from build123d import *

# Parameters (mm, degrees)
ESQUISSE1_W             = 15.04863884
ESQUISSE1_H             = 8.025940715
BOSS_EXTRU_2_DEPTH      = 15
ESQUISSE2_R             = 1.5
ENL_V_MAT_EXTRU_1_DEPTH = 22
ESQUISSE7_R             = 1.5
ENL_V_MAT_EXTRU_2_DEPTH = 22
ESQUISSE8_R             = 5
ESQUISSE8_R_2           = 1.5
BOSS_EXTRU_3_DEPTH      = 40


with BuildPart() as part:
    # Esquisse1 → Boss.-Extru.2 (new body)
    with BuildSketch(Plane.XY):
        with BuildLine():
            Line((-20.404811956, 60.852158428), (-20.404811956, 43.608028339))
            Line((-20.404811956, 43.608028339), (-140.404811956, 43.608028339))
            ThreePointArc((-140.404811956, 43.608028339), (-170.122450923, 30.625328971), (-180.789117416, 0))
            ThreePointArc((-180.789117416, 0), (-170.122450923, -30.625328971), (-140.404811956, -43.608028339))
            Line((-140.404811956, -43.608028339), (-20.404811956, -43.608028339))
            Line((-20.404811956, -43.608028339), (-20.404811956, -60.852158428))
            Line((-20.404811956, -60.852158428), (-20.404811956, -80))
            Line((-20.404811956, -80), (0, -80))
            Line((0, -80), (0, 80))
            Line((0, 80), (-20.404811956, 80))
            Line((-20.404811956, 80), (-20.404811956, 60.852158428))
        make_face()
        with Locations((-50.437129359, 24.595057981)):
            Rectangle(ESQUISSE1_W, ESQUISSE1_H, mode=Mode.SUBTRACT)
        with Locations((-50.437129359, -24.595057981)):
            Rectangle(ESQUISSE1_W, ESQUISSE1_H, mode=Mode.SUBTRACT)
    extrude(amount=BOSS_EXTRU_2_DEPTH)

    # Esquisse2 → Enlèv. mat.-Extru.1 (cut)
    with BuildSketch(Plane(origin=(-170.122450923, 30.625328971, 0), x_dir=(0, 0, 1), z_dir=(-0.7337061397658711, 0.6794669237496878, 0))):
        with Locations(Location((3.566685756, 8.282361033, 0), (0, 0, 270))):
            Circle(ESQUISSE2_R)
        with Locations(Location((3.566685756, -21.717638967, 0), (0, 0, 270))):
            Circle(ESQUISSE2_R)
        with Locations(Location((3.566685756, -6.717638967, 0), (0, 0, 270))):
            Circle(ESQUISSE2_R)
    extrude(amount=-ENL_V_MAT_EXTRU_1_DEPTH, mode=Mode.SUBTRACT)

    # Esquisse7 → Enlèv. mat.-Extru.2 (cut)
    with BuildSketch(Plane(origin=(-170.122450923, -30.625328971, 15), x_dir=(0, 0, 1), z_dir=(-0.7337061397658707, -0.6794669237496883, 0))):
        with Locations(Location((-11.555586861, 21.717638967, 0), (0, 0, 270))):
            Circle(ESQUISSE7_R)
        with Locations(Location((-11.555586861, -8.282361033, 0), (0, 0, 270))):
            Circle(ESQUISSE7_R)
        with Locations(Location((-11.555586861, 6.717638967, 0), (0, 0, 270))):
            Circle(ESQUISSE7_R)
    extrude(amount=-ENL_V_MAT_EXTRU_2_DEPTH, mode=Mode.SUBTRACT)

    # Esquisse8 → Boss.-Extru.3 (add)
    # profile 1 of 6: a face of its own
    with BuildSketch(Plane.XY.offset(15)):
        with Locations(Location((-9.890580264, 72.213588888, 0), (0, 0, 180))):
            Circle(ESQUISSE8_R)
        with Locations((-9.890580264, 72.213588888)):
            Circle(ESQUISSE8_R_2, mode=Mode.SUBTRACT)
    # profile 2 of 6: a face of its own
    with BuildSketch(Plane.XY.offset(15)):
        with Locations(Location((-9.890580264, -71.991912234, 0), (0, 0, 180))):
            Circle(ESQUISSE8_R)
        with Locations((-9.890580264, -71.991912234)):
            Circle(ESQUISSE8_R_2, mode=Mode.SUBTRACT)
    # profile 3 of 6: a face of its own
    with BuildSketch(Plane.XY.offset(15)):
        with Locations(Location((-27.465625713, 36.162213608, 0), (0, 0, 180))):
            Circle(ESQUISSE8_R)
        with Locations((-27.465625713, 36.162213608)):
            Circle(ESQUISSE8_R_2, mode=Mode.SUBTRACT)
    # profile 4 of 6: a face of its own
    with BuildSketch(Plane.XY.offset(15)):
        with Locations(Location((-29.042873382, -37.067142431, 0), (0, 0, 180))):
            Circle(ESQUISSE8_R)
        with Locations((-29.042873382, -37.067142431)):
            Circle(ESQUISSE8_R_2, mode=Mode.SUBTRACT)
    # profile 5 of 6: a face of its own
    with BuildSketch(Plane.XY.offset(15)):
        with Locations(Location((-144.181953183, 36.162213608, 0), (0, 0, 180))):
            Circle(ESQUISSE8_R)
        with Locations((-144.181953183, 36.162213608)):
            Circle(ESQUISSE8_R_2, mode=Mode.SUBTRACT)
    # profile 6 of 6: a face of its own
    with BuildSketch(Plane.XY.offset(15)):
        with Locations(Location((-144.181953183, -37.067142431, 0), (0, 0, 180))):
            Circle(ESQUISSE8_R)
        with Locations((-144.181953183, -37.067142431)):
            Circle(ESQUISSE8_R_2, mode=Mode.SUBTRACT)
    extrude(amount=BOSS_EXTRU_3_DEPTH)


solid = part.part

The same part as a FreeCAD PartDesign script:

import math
import FreeCAD as App
import Part
import Sketcher

doc = App.newDocument("Part")
body = doc.addObject("PartDesign::Body", "Body")

# Sketch on XY plane
sketch1 = body.newObject("Sketcher::SketchObject", "Sketch")
sketch1.AttachmentSupport = (doc.getObject("XY_Plane"), [""])
sketch1.MapMode = "FlatFace"
sketch1.addGeometry(Part.LineSegment(App.Vector(-20, 44, 0), App.Vector(-140, 44, 0)), False)
sketch1.addGeometry(Part.ArcOfCircle(Part.Circle(App.Vector(-140, 3, 0), App.Vector(0, 0, 1), 41), math.radians(90), math.radians(184)), False)
sketch1.addGeometry(Part.ArcOfCircle(Part.Circle(App.Vector(-140, -3, 0), App.Vector(0, 0, 1), 41), math.radians(176), math.radians(270)), False)
sketch1.addGeometry(Part.LineSegment(App.Vector(-140, -44, 0), App.Vector(-20, -44, 0)), False)
sketch1.addGeometry(Part.LineSegment(App.Vector(-20, -44, 0), App.Vector(-20, -80, 0)), False)
sketch1.addGeometry(Part.LineSegment(App.Vector(-20, -80, 0), App.Vector(0, -80, 0)), False)
sketch1.addGeometry(Part.LineSegment(App.Vector(0, -80, 0), App.Vector(0, 80, 0)), False)
sketch1.addGeometry(Part.LineSegment(App.Vector(0, 80, 0), App.Vector(-20, 80, 0)), False)
sketch1.addGeometry(Part.LineSegment(App.Vector(-20, 80, 0), App.Vector(-20, 44, 0)), False)
sketch1.addGeometry(Part.LineSegment(App.Vector(-43, -29, 0), App.Vector(-58, -29, 0)), False)
sketch1.addGeometry(Part.LineSegment(App.Vector(-58, -29, 0), App.Vector(-58, -21, 0)), False)
sketch1.addGeometry(Part.LineSegment(App.Vector(-58, -21, 0), App.Vector(-43, -21, 0)), False)
sketch1.addGeometry(Part.LineSegment(App.Vector(-43, -21, 0), App.Vector(-43, -29, 0)), False)
sketch1.addGeometry(Part.LineSegment(App.Vector(-43, 21, 0), App.Vector(-58, 21, 0)), False)
sketch1.addGeometry(Part.LineSegment(App.Vector(-58, 21, 0), App.Vector(-58, 29, 0)), False)
sketch1.addGeometry(Part.LineSegment(App.Vector(-58, 29, 0), App.Vector(-43, 29, 0)), False)
sketch1.addGeometry(Part.LineSegment(App.Vector(-43, 29, 0), App.Vector(-43, 21, 0)), False)
sketch1.addConstraint(Sketcher.Constraint("Tangent", 0, 2, 1, 1))
sketch1.addConstraint(Sketcher.Constraint("Coincident", 1, 2, 2, 1))
sketch1.addConstraint(Sketcher.Constraint("Tangent", 2, 2, 3, 1))
sketch1.addConstraint(Sketcher.Constraint("Coincident", 3, 2, 4, 1))
sketch1.addConstraint(Sketcher.Constraint("Coincident", 4, 2, 5, 1))
sketch1.addConstraint(Sketcher.Constraint("Coincident", 5, 2, 6, 1))
sketch1.addConstraint(Sketcher.Constraint("Coincident", 6, 2, 7, 1))
sketch1.addConstraint(Sketcher.Constraint("Coincident", 7, 2, 8, 1))
sketch1.addConstraint(Sketcher.Constraint("Coincident", 8, 2, 0, 1))
sketch1.addConstraint(Sketcher.Constraint("Coincident", 9, 2, 10, 1))
sketch1.addConstraint(Sketcher.Constraint("Coincident", 10, 2, 11, 1))
sketch1.addConstraint(Sketcher.Constraint("Coincident", 11, 2, 12, 1))
sketch1.addConstraint(Sketcher.Constraint("Coincident", 12, 2, 9, 1))
sketch1.addConstraint(Sketcher.Constraint("Coincident", 13, 2, 14, 1))
sketch1.addConstraint(Sketcher.Constraint("Coincident", 14, 2, 15, 1))
sketch1.addConstraint(Sketcher.Constraint("Coincident", 15, 2, 16, 1))
sketch1.addConstraint(Sketcher.Constraint("Coincident", 16, 2, 13, 1))
sketch1.addConstraint(Sketcher.Constraint("Horizontal", 0))
sketch1.addConstraint(Sketcher.Constraint("Horizontal", 3))
sketch1.addConstraint(Sketcher.Constraint("Vertical", 4))
sketch1.addConstraint(Sketcher.Constraint("Horizontal", 5))
sketch1.addConstraint(Sketcher.Constraint("Vertical", 6))
sketch1.addConstraint(Sketcher.Constraint("Horizontal", 7))
sketch1.addConstraint(Sketcher.Constraint("Vertical", 8))
sketch1.addConstraint(Sketcher.Constraint("Horizontal", 9))
sketch1.addConstraint(Sketcher.Constraint("Vertical", 10))
sketch1.addConstraint(Sketcher.Constraint("Horizontal", 11))
sketch1.addConstraint(Sketcher.Constraint("Vertical", 12))
sketch1.addConstraint(Sketcher.Constraint("Horizontal", 13))
sketch1.addConstraint(Sketcher.Constraint("Vertical", 14))
sketch1.addConstraint(Sketcher.Constraint("Horizontal", 15))
sketch1.addConstraint(Sketcher.Constraint("Vertical", 16))
sketch1.addConstraint(Sketcher.Constraint("Equal", 1, 2))
sketch1.addConstraint(Sketcher.Constraint("Symmetric", 5, 2, 6, 2, -1, 1))
sketch1.addConstraint(Sketcher.Constraint("Symmetric", 1, 3, 2, 3, -1))
sketch1.addConstraint(Sketcher.Constraint("Symmetric", 10, 2, 13, 2, -1))
sketch1.addConstraint(Sketcher.Constraint("Symmetric", 12, 2, 15, 2, -1))
sketch1.addConstraint(Sketcher.Constraint("Vertical", 4, 2, 7, 2))
sketch1.addConstraint(Sketcher.Constraint("DistanceX", 0, 2, 0, 1, 120.0))
sketch1.addConstraint(Sketcher.Constraint("DistanceY", 6, 1, 6, 2, 160.0))
sketch1.addConstraint(Sketcher.Constraint("DistanceY", 3, 2, 9, 2, 15.0))
sketch1.addConstraint(Sketcher.Constraint("Radius", 1, 40.503462))
sketch1.addConstraint(Sketcher.Constraint("DistanceX", 5, 1, 5, 2, 20.404812))
sketch1.addConstraint(Sketcher.Constraint("DistanceX", 9, 2, 9, 1, 15.048639))
sketch1.addConstraint(Sketcher.Constraint("DistanceY", 4, 2, 4, 1, 36.391972))
sketch1.addConstraint(Sketcher.Constraint("DistanceY", 10, 1, 10, 2, 8.025941))
sketch1.addConstraint(Sketcher.Constraint("DistanceX", 9, 2, -1, 1, 57.961449))
pad1 = body.newObject("PartDesign::Pad", "Pad")
pad1.Profile = sketch1
pad1.Length = 15

# Sketch on an angled plane
sketch2 = body.newObject("Sketcher::SketchObject", "Sketch001")
sketch2.Placement = App.Placement(App.Vector(-170.122451, 30.625329, 0), App.Rotation(App.Vector(0, 0, 1), App.Vector(0.679466924, 0.73370614, 0), App.Vector(-0.73370614, 0.679466924, 0), "ZXY"))
sketch2.addGeometry(Part.Circle(App.Vector(3.6, 8.3, 0), App.Vector(0, 0, 1), 1.5), False)
sketch2.addGeometry(Part.Circle(App.Vector(3.6, -21.7, 0), App.Vector(0, 0, 1), 1.5), False)
sketch2.addGeometry(Part.Circle(App.Vector(3.6, -6.7, 0), App.Vector(0, 0, 1), 1.5), False)
sketch2.addConstraint(Sketcher.Constraint("Equal", 0, 1))
sketch2.addConstraint(Sketcher.Constraint("Equal", 1, 2))
sketch2.addConstraint(Sketcher.Constraint("Vertical", 0, 3, 1, 3))
sketch2.addConstraint(Sketcher.Constraint("Vertical", 1, 3, 2, 3))
sketch2.addConstraint(Sketcher.Constraint("Diameter", 0, 3.0))
sketch2.addConstraint(Sketcher.Constraint("DistanceY", 1, 3, 0, 3, 30.0))
sketch2.addConstraint(Sketcher.Constraint("DistanceY", 1, 3, 2, 3, 15.0))
sketch2.addConstraint(Sketcher.Constraint("DistanceY", -1, 1, 0, 3, 8.282361))
sketch2.addConstraint(Sketcher.Constraint("DistanceX", -1, 1, 0, 3, 3.566686))
pocket1 = body.newObject("PartDesign::Pocket", "Pocket")
pocket1.Profile = sketch2
pocket1.Length = 22

# Sketch on an angled plane
sketch3 = body.newObject("Sketcher::SketchObject", "Sketch002")
sketch3.Placement = App.Placement(App.Vector(-170.122451, -30.625329, 15), App.Rotation(App.Vector(0, 0, 1), App.Vector(-0.679466924, 0.73370614, 0), App.Vector(-0.73370614, -0.679466924, 0), "ZXY"))
sketch3.addGeometry(Part.Circle(App.Vector(-11.6, 21.7, 0), App.Vector(0, 0, 1), 1.5), False)
sketch3.addGeometry(Part.Circle(App.Vector(-11.6, -8.3, 0), App.Vector(0, 0, 1), 1.5), False)
sketch3.addGeometry(Part.Circle(App.Vector(-11.6, 6.7, 0), App.Vector(0, 0, 1), 1.5), False)
sketch3.addConstraint(Sketcher.Constraint("Equal", 0, 1))
sketch3.addConstraint(Sketcher.Constraint("Equal", 1, 2))
sketch3.addConstraint(Sketcher.Constraint("Vertical", 0, 3, 1, 3))
sketch3.addConstraint(Sketcher.Constraint("Vertical", 1, 3, 2, 3))
sketch3.addConstraint(Sketcher.Constraint("Diameter", 0, 3.0))
sketch3.addConstraint(Sketcher.Constraint("DistanceY", 1, 3, 0, 3, 30.0))
sketch3.addConstraint(Sketcher.Constraint("DistanceY", 2, 3, 0, 3, 15.0))
sketch3.addConstraint(Sketcher.Constraint("DistanceY", -1, 1, 0, 3, 21.717639))
sketch3.addConstraint(Sketcher.Constraint("DistanceX", 0, 3, -1, 1, 11.555587))
pocket2 = body.newObject("PartDesign::Pocket", "Pocket001")
pocket2.Profile = sketch3
pocket2.Length = 22

# Sketch on XY plane
sketch4 = body.newObject("Sketcher::SketchObject", "Sketch003")
sketch4.AttachmentSupport = (doc.getObject("XY_Plane"), [""])
sketch4.MapMode = "FlatFace"
sketch4.AttachmentOffset = App.Placement(App.Vector(0, 0, 15), App.Rotation())
sketch4.addGeometry(Part.Circle(App.Vector(-9.9, 72.2, 0), App.Vector(0, 0, 1), 5), False)
sketch4.addGeometry(Part.Circle(App.Vector(-9.9, 72.2, 0), App.Vector(0, 0, 1), 1.5), False)
sketch4.addGeometry(Part.Circle(App.Vector(-9.9, -72, 0), App.Vector(0, 0, 1), 5), False)
sketch4.addGeometry(Part.Circle(App.Vector(-9.9, -72, 0), App.Vector(0, 0, 1), 1.5), False)
sketch4.addGeometry(Part.Circle(App.Vector(-27.5, 36.2, 0), App.Vector(0, 0, 1), 5), False)
sketch4.addGeometry(Part.Circle(App.Vector(-27.5, 36.2, 0), App.Vector(0, 0, 1), 1.5), False)
sketch4.addGeometry(Part.Circle(App.Vector(-29, -37.1, 0), App.Vector(0, 0, 1), 5), False)
sketch4.addGeometry(Part.Circle(App.Vector(-29, -37.1, 0), App.Vector(0, 0, 1), 1.5), False)
sketch4.addGeometry(Part.Circle(App.Vector(-144.2, 36.2, 0), App.Vector(0, 0, 1), 5), False)
sketch4.addGeometry(Part.Circle(App.Vector(-144.2, 36.2, 0), App.Vector(0, 0, 1), 1.5), False)
sketch4.addGeometry(Part.Circle(App.Vector(-144.2, -37.1, 0), App.Vector(0, 0, 1), 5), False)
sketch4.addGeometry(Part.Circle(App.Vector(-144.2, -37.1, 0), App.Vector(0, 0, 1), 1.5), False)
sketch4.addConstraint(Sketcher.Constraint("Coincident", 1, 3, 0, 3))
sketch4.addConstraint(Sketcher.Constraint("Coincident", 3, 3, 2, 3))
sketch4.addConstraint(Sketcher.Constraint("Coincident", 5, 3, 4, 3))
sketch4.addConstraint(Sketcher.Constraint("Coincident", 7, 3, 6, 3))
sketch4.addConstraint(Sketcher.Constraint("Coincident", 9, 3, 8, 3))
sketch4.addConstraint(Sketcher.Constraint("Coincident", 11, 3, 10, 3))
sketch4.addConstraint(Sketcher.Constraint("Equal", 0, 2))
sketch4.addConstraint(Sketcher.Constraint("Equal", 1, 3))
sketch4.addConstraint(Sketcher.Constraint("Equal", 2, 4))
sketch4.addConstraint(Sketcher.Constraint("Equal", 3, 5))
sketch4.addConstraint(Sketcher.Constraint("Equal", 4, 6))
sketch4.addConstraint(Sketcher.Constraint("Equal", 5, 7))
sketch4.addConstraint(Sketcher.Constraint("Equal", 6, 8))
sketch4.addConstraint(Sketcher.Constraint("Equal", 7, 9))
sketch4.addConstraint(Sketcher.Constraint("Equal", 8, 10))
sketch4.addConstraint(Sketcher.Constraint("Equal", 9, 11))
sketch4.addConstraint(Sketcher.Constraint("Horizontal", 5, 3, 8, 3))
sketch4.addConstraint(Sketcher.Constraint("Horizontal", 7, 3, 10, 3))
sketch4.addConstraint(Sketcher.Constraint("Vertical", 1, 3, 2, 3))
sketch4.addConstraint(Sketcher.Constraint("Vertical", 9, 3, 10, 3))
sketch4.addConstraint(Sketcher.Constraint("Diameter", 0, 10.0))
sketch4.addConstraint(Sketcher.Constraint("Diameter", 1, 3.0))
sketch4.addConstraint(Sketcher.Constraint("DistanceY", 2, 3, 0, 3, 144.205501))
sketch4.addConstraint(Sketcher.Constraint("DistanceX", 0, 3, -1, 1, 9.89058))
sketch4.addConstraint(Sketcher.Constraint("DistanceY", -1, 1, 0, 3, 72.213589))
sketch4.addConstraint(Sketcher.Constraint("DistanceY", 2, 3, 6, 3, 34.92477))
sketch4.addConstraint(Sketcher.Constraint("DistanceX", 8, 3, 6, 3, 115.13908))
sketch4.addConstraint(Sketcher.Constraint("DistanceX", 4, 3, -1, 1, 27.465626))
sketch4.addConstraint(Sketcher.Constraint("DistanceY", -1, 1, 4, 3, 36.162214))
sketch4.addConstraint(Sketcher.Constraint("DistanceX", 6, 3, -1, 1, 29.042873))
pad2 = body.newObject("PartDesign::Pad", "Pad001")
pad2.Profile = sketch4
pad2.Length = 40

doc.recompute()
